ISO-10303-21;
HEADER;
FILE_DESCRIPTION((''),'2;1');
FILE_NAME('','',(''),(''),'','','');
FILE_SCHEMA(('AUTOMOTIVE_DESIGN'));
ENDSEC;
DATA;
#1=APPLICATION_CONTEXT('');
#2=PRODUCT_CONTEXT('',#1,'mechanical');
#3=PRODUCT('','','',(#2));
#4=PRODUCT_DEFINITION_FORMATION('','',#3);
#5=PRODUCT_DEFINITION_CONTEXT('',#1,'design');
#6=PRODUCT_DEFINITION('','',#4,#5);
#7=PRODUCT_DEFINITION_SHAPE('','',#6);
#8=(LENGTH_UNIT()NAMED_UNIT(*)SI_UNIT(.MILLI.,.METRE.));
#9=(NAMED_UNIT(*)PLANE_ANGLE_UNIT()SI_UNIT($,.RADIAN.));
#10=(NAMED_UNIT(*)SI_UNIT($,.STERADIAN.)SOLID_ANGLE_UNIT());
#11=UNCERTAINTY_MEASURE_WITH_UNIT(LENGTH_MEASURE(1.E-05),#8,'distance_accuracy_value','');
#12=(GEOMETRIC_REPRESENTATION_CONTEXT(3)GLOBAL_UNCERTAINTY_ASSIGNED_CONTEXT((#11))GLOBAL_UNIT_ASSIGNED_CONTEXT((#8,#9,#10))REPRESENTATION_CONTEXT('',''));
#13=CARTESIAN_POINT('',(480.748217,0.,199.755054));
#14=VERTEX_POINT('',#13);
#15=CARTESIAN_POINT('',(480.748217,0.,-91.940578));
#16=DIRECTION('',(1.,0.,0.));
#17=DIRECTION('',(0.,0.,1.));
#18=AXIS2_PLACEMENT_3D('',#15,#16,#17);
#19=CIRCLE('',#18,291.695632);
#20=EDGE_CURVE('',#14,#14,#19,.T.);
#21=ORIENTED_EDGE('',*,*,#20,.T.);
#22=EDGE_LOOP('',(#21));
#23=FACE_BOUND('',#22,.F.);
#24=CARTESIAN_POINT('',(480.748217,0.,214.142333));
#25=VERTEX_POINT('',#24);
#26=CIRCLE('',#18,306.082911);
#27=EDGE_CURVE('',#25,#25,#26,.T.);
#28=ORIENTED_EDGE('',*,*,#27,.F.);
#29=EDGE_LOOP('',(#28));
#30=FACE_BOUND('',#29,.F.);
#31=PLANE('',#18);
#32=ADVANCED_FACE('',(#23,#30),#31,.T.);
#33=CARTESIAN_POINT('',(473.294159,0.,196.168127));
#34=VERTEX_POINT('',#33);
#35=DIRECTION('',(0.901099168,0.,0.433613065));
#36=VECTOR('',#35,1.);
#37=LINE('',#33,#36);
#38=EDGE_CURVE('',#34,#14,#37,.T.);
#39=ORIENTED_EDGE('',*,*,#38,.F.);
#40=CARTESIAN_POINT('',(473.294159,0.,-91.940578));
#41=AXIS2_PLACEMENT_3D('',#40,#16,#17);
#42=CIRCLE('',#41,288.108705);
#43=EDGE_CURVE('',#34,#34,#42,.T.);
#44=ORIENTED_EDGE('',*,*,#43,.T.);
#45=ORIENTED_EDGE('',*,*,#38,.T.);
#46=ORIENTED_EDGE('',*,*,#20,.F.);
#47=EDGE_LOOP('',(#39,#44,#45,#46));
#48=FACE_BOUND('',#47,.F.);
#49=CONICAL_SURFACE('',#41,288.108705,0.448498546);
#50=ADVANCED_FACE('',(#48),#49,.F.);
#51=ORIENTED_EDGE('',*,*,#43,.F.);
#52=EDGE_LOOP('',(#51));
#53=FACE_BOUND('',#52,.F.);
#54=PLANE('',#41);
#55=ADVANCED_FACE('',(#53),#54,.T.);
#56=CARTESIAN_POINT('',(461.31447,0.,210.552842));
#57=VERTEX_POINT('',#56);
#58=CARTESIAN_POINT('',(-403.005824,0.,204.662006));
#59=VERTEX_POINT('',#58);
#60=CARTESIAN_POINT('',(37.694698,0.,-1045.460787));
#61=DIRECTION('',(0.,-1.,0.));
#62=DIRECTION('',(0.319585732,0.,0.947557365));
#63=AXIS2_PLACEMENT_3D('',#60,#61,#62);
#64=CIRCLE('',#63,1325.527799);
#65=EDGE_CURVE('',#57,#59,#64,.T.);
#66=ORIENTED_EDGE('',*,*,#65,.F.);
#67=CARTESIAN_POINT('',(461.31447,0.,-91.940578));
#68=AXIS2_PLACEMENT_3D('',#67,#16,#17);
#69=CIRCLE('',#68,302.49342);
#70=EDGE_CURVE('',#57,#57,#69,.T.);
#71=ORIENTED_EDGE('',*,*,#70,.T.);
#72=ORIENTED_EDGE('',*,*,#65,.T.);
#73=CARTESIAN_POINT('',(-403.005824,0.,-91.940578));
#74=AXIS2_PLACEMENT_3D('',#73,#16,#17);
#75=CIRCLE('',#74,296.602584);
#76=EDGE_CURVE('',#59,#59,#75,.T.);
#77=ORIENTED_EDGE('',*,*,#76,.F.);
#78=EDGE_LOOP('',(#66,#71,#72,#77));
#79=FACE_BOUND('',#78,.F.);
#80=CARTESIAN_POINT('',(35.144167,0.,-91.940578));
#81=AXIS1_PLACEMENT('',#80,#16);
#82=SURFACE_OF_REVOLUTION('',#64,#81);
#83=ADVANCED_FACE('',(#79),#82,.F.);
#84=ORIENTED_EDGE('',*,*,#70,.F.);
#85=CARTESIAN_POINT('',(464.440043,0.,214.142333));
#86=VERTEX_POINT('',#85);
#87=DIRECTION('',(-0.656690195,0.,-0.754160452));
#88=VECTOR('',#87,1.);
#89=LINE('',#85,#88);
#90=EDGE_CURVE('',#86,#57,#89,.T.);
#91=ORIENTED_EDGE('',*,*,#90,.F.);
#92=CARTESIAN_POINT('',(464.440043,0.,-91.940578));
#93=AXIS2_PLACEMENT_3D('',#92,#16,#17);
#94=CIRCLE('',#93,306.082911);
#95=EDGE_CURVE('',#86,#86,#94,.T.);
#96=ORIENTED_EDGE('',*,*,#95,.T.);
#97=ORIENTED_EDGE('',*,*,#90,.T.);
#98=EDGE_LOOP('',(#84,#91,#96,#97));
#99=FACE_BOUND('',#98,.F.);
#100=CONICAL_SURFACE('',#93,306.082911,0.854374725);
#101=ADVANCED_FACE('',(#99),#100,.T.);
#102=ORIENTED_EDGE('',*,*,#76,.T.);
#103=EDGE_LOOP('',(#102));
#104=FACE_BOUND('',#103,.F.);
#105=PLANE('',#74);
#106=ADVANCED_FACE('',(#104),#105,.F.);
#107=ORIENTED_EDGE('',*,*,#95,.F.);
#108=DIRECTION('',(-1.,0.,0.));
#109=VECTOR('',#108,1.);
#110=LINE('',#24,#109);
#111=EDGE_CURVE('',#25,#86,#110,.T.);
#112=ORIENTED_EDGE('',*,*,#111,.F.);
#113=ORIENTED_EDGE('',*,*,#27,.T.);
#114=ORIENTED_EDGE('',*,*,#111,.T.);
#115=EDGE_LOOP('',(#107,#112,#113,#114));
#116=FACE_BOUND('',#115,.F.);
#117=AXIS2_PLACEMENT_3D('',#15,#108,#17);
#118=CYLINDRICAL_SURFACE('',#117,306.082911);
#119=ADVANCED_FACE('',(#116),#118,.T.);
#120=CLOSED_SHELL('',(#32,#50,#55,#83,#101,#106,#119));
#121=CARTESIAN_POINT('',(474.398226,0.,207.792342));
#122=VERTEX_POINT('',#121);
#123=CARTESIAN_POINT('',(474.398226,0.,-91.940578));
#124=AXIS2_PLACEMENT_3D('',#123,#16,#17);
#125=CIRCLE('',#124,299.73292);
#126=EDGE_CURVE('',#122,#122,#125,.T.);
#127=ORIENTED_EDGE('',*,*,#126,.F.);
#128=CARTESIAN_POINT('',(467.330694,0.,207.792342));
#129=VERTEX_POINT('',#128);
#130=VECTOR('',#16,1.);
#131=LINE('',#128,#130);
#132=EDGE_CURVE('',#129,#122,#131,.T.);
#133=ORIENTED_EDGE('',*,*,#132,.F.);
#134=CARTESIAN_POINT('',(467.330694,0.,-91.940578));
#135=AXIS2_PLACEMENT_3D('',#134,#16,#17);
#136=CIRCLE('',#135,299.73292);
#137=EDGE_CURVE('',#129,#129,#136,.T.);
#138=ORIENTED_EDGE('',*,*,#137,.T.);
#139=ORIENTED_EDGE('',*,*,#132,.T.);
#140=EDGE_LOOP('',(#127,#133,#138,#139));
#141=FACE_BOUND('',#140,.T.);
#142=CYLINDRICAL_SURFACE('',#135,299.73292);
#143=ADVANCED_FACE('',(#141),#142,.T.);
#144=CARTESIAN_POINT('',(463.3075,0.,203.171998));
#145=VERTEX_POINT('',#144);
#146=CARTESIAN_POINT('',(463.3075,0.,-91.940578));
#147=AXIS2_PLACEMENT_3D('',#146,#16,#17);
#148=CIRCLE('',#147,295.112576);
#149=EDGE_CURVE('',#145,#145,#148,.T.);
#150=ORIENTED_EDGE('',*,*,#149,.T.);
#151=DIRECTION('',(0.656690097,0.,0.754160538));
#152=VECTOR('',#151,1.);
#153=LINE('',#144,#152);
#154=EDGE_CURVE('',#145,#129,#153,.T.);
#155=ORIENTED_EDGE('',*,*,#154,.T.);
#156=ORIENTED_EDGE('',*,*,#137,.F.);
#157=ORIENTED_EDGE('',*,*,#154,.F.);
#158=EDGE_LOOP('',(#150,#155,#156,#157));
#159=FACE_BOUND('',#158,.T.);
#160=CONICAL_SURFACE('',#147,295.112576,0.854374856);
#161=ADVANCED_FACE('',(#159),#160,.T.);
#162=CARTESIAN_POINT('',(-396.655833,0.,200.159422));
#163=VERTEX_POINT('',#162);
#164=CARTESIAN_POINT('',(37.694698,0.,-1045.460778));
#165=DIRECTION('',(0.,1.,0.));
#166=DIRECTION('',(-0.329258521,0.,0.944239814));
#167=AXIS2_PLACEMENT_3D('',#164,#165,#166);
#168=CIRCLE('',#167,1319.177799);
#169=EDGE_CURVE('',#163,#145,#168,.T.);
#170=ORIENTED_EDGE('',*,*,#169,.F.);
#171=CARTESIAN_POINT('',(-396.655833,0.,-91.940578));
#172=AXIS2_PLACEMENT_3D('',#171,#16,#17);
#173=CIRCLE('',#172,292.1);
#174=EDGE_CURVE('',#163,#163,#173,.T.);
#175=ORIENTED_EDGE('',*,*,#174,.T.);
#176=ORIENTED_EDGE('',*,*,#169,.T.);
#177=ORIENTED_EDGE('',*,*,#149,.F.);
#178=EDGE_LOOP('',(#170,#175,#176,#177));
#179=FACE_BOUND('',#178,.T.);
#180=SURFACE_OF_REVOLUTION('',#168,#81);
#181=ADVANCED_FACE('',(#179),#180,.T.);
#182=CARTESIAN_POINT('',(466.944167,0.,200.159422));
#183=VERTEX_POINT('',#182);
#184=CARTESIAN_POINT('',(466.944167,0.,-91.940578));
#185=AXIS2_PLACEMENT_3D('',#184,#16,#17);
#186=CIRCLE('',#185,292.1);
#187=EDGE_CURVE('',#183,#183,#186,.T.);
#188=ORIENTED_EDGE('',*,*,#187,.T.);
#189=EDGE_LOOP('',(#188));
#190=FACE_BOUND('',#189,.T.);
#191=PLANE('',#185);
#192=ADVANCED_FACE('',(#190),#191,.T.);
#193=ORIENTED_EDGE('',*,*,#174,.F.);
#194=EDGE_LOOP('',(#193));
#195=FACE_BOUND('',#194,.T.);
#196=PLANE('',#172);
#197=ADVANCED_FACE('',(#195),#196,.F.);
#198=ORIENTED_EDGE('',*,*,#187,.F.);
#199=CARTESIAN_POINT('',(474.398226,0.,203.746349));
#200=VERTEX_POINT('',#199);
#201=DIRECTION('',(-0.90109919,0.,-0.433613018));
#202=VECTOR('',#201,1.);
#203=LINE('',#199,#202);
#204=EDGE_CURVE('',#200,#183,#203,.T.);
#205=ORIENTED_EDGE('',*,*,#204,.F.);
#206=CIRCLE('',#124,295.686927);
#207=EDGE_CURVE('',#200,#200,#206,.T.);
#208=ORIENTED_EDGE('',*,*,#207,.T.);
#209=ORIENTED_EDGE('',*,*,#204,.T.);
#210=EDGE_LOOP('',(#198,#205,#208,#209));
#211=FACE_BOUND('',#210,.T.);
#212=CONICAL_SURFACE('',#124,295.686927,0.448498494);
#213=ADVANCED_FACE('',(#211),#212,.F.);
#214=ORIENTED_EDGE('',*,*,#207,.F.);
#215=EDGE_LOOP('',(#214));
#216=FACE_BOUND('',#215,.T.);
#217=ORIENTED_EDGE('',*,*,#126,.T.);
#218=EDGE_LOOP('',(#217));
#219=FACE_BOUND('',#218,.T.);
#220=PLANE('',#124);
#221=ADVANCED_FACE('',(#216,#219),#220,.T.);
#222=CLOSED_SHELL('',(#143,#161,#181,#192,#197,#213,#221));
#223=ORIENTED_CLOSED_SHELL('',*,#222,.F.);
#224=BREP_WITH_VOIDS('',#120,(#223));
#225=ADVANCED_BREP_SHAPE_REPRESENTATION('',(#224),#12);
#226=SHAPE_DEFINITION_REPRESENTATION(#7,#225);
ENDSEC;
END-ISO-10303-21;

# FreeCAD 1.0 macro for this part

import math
import FreeCAD as App
import Part
import Sketcher
Q = App.Units.Quantity

doc = App.newDocument("Part")
body = doc.addObject("PartDesign::Body", "Body")

# Sketch on XZ plane
sketch1 = body.newObject("Sketcher::SketchObject", "Sketch")
sketch1.AttachmentSupport = (doc.getObject("XZ_Plane"), [""])
sketch1.MapMode = "FlatFace"
sketch1.addGeometry(Part.LineSegment(App.Vector(-403.005824, -91.940578, 0), App.Vector(-396.655833, -91.940578, 0)), False)
sketch1.addGeometry(Part.LineSegment(App.Vector(-396.655833, -91.940578, 0), App.Vector(-396.655833, 200.159422, 0)), False)
sketch1.addGeometry(Part.ArcOfCircle(Part.Circle(App.Vector(37.694698, -1045.460778, 0), App.Vector(0, 0, 1), 1319.177799), math.radians(71.177652), math.radians(109.223777)), False)
sketch1.addGeometry(Part.LineSegment(App.Vector(463.3075, 203.171998, 0), App.Vector(467.330694, 207.792342, 0)), False)
sketch1.addGeometry(Part.LineSegment(App.Vector(467.330694, 207.792342, 0), App.Vector(474.398226, 207.792342, 0)), False)
sketch1.addGeometry(Part.LineSegment(App.Vector(474.398226, 207.792342, 0), App.Vector(474.398226, 203.746349, 0)), False)
sketch1.addGeometry(Part.LineSegment(App.Vector(474.398226, 203.746349, 0), App.Vector(466.944167, 200.159422, 0)), False)
sketch1.addGeometry(Part.LineSegment(App.Vector(466.944167, 200.159422, 0), App.Vector(466.944167, -91.940578, 0)), False)
sketch1.addGeometry(Part.LineSegment(App.Vector(466.944167, -91.940578, 0), App.Vector(473.294159, -91.940578, 0)), False)
sketch1.addGeometry(Part.LineSegment(App.Vector(473.294159, -91.940578, 0), App.Vector(473.294159, 196.168127, 0)), False)
sketch1.addGeometry(Part.LineSegment(App.Vector(473.294159, 196.168127, 0), App.Vector(480.748217, 199.755054, 0)), False)
sketch1.addGeometry(Part.LineSegment(App.Vector(480.748217, 199.755054, 0), App.Vector(480.748217, 214.142333, 0)), False)
sketch1.addGeometry(Part.LineSegment(App.Vector(480.748217, 214.142333, 0), App.Vector(464.440043, 214.142333, 0)), False)
sketch1.addGeometry(Part.LineSegment(App.Vector(464.440043, 214.142333, 0), App.Vector(461.31447, 210.552842, 0)), False)
sketch1.addGeometry(Part.ArcOfCircle(Part.Circle(App.Vector(37.694698, -1045.460787, 0), App.Vector(0, 0, 1), 1325.527799), math.radians(71.362126), math.radians(109.418868)), False)
sketch1.addGeometry(Part.LineSegment(App.Vector(-403.005824, 204.662006, 0), App.Vector(-403.005824, -91.940578, 0)), False)
sketch1.addGeometry(Part.LineSegment(App.Vector(-403.005824, -91.940578, 0), App.Vector(480.748217, -91.940578, 0)), True)  # axis
sketch1.addConstraint(Sketcher.Constraint("Coincident", 0, 2, 1, 1))
sketch1.addConstraint(Sketcher.Constraint("Coincident", 1, 2, 2, 2))
sketch1.addConstraint(Sketcher.Constraint("Coincident", 2, 1, 3, 1))
sketch1.addConstraint(Sketcher.Constraint("Coincident", 3, 2, 4, 1))
sketch1.addConstraint(Sketcher.Constraint("Coincident", 4, 2, 5, 1))
sketch1.addConstraint(Sketcher.Constraint("Coincident", 5, 2, 6, 1))
sketch1.addConstraint(Sketcher.Constraint("Coincident", 6, 2, 7, 1))
sketch1.addConstraint(Sketcher.Constraint("Coincident", 7, 2, 8, 1))
sketch1.addConstraint(Sketcher.Constraint("Coincident", 8, 2, 9, 1))
sketch1.addConstraint(Sketcher.Constraint("Coincident", 9, 2, 10, 1))
sketch1.addConstraint(Sketcher.Constraint("Coincident", 10, 2, 11, 1))
sketch1.addConstraint(Sketcher.Constraint("Coincident", 11, 2, 12, 1))
sketch1.addConstraint(Sketcher.Constraint("Coincident", 12, 2, 13, 1))
sketch1.addConstraint(Sketcher.Constraint("Coincident", 13, 2, 14, 1))
sketch1.addConstraint(Sketcher.Constraint("Coincident", 14, 2, 15, 1))
sketch1.addConstraint(Sketcher.Constraint("Coincident", 15, 2, 0, 1))
sketch1.addConstraint(Sketcher.Constraint("Horizontal", 0))
sketch1.addConstraint(Sketcher.Constraint("Vertical", 1))
sketch1.addConstraint(Sketcher.Constraint("Horizontal", 4))
sketch1.addConstraint(Sketcher.Constraint("Vertical", 5))
sketch1.addConstraint(Sketcher.Constraint("Vertical", 7))
sketch1.addConstraint(Sketcher.Constraint("Horizontal", 8))
sketch1.addConstraint(Sketcher.Constraint("Vertical", 9))
sketch1.addConstraint(Sketcher.Constraint("Vertical", 11))
sketch1.addConstraint(Sketcher.Constraint("Horizontal", 12))
sketch1.addConstraint(Sketcher.Constraint("Vertical", 15))
sketch1.addConstraint(Sketcher.Constraint("Horizontal", 16))
sketch1.addConstraint(Sketcher.Constraint("Coincident", 14, 3, 2, 3))
sketch1.addConstraint(Sketcher.Constraint("Coincident", 16, 1, 15, 2))
sketch1.addConstraint(Sketcher.Constraint("Parallel", 6, 10))
sketch1.addConstraint(Sketcher.Constraint("Parallel", 3, 13))
sketch1.addConstraint(Sketcher.Constraint("Horizontal", 1, 2, 6, 2))
sketch1.addConstraint(Sketcher.Constraint("Horizontal", 0, 2, 7, 2))
sketch1.addConstraint(Sketcher.Constraint("Vertical", 11, 2, 16, 2))
sketch1.addConstraint(Sketcher.Constraint("Equal", 0, 8))
sketch1.addConstraint(Sketcher.Constraint("Equal", 6, 10))
sketch1.addConstraint(Sketcher.Constraint("DistanceY", 1, 1, 1, 2, Q("11.5 in")))
sketch1.addConstraint(Sketcher.Constraint("DistanceX", 1, 2, 6, 2, Q("34 in")))
sketch1.addConstraint(Sketcher.Constraint("Radius", 2, 1319.177799))
sketch1.addConstraint(Sketcher.Constraint("Radius", 14, 1325.527799))
sketch1.addConstraint(Sketcher.Constraint("DistanceX", 0, 1, 0, 2, 6.349991))
sketch1.addConstraint(Sketcher.Constraint("DistanceX", 16, 1, 16, 2, 883.754041))
sketch1.addConstraint(Sketcher.Constraint("DistanceY", 11, 1, 11, 2, 14.387279))
sketch1.addConstraint(Sketcher.Constraint("DistanceX", -1, 1, 2, 3, 37.694698))
sketch1.addConstraint(Sketcher.Constraint("DistanceY", 2, 3, 0, 2, 953.5202))
sketch1.addConstraint(Sketcher.Constraint("DistanceY", 3, 2, 13, 2, 2.7605))
sketch1.addConstraint(Sketcher.Constraint("DistanceX", 4, 1, 4, 2, 7.067532))
sketch1.addConstraint(Sketcher.Constraint("DistanceX", 12, 2, 12, 1, 16.308174))
sketch1.addConstraint(Sketcher.Constraint("DistanceY", 5, 2, 5, 1, 4.045993))
sketch1.addConstraint(Sketcher.Constraint("DistanceY", 9, 1, 9, 2, 288.108705))
sketch1.addConstraint(Sketcher.Constraint("DistanceY", 2, 3, -1, 1, 1045.460778))
sketch1.addConstraint(Sketcher.Constraint("DistanceY", -1, 1, 3, 2, 207.792342))
revolution = body.newObject("PartDesign::Revolution", "Revolution")
revolution.Profile = sketch1
revolution.ReferenceAxis = (sketch1, ["Axis0"])
revolution.Angle = 360

doc.recompute()
